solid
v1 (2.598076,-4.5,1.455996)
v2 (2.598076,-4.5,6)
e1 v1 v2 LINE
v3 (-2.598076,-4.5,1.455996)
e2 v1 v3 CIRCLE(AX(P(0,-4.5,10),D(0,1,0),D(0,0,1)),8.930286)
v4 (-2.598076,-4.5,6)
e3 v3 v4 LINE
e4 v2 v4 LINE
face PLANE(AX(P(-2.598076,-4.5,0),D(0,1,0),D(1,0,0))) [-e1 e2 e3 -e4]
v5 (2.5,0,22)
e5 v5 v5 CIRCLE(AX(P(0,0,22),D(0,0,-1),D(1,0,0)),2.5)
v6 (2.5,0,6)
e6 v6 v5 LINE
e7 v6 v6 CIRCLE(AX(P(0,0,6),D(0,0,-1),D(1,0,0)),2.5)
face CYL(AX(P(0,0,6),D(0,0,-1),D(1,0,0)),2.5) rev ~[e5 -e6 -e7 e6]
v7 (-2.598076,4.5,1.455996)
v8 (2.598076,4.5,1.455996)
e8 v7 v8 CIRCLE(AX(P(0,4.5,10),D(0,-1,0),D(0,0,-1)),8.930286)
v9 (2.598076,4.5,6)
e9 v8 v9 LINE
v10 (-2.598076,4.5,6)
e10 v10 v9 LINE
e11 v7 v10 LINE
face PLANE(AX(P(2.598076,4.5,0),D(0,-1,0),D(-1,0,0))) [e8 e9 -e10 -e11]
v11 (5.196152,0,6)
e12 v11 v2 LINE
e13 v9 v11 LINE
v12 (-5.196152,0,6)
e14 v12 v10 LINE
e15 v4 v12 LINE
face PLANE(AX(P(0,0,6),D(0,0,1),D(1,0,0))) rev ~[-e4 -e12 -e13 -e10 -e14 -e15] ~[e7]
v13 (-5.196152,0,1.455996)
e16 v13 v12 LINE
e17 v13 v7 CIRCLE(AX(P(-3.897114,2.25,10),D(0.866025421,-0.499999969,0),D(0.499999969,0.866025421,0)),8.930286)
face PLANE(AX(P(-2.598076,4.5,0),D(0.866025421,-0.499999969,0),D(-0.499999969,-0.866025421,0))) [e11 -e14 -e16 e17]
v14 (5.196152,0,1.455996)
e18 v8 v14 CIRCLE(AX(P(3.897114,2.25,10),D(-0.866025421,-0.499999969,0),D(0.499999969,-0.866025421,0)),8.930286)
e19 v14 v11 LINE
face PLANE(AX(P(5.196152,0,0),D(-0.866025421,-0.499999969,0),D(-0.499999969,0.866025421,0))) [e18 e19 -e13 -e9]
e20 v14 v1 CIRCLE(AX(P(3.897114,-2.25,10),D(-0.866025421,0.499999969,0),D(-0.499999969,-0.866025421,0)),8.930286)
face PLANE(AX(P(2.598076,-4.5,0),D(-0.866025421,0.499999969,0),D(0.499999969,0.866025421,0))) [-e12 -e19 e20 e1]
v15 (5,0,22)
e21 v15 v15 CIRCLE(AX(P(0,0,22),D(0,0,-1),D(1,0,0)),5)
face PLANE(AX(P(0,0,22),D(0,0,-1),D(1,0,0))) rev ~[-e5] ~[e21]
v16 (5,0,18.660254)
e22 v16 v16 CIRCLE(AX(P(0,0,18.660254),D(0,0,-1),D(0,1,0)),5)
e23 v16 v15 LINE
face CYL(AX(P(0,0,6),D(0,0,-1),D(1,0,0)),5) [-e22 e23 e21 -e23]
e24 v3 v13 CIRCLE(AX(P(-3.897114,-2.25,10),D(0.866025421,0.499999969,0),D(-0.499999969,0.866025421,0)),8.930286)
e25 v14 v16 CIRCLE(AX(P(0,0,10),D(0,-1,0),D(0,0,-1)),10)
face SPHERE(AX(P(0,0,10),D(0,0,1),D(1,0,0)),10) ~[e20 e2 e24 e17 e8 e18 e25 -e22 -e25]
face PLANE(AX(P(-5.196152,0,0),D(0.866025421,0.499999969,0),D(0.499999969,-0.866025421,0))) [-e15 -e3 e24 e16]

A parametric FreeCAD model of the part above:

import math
import FreeCAD as App
import Part
import Sketcher
from FreeCAD import Vector
Q = App.Units.Quantity

doc = App.newDocument("Part")
body = doc.addObject("PartDesign::Body", "Body")

sketch1 = body.newObject("Sketcher::SketchObject", "Sketch")
sketch1.AttachmentSupport = (doc.getObject("XZ_Plane"), [""])
sketch1.MapMode = "FlatFace"
sketch1.addGeometry(Part.ArcOfCircle(Part.Circle(Vector(0, 10, 0), Vector(0, 0, 1), 10), math.radians(-90), math.radians(90)), False)
sketch1.addGeometry(Part.LineSegment(Vector(0, 20, 0), Vector(0, 0, 0)), False)
sketch1.addConstraint(Sketcher.Constraint("Coincident", 0, 1, 1, 2))
sketch1.addConstraint(Sketcher.Constraint("Coincident", 1, 1, 0, 2))
sketch1.addConstraint(Sketcher.Constraint("Vertical", 1))
sketch1.addConstraint(Sketcher.Constraint("Coincident", 0, 1, -1, 1))
sketch1.addConstraint(Sketcher.Constraint("PointOnObject", 0, 3, -2))
sketch1.addConstraint(Sketcher.Constraint("Radius", 0, Q("10 mm")))
revolution = body.newObject("PartDesign::Revolution", "Revolution")
revolution.Profile = sketch1
revolution.ReferenceAxis = (sketch1, ["V_Axis"])
revolution.Angle = 360

sketch2 = body.newObject("Sketcher::SketchObject", "Sketch001")
sketch2.AttachmentSupport = (doc.getObject("XY_Plane"), [""])
sketch2.MapMode = "FlatFace"
sketch2.addGeometry(Part.LineSegment(Vector(-3, -4, 0), Vector(3, -4, 0)), False)
sketch2.addGeometry(Part.LineSegment(Vector(3, -4, 0), Vector(5, 0, 0)), False)
sketch2.addGeometry(Part.LineSegment(Vector(5, 0, 0), Vector(3, 4, 0)), False)
sketch2.addGeometry(Part.LineSegment(Vector(3, 4, 0), Vector(-3, 4, 0)), False)
sketch2.addGeometry(Part.LineSegment(Vector(-3, 4, 0), Vector(-5, 0, 0)), False)
sketch2.addGeometry(Part.LineSegment(Vector(-5, 0, 0), Vector(-3, -4, 0)), False)
sketch2.addConstraint(Sketcher.Constraint("Coincident", 0, 2, 1, 1))
sketch2.addConstraint(Sketcher.Constraint("Coincident", 1, 2, 2, 1))
sketch2.addConstraint(Sketcher.Constraint("Coincident", 2, 2, 3, 1))
sketch2.addConstraint(Sketcher.Constraint("Coincident", 3, 2, 4, 1))
sketch2.addConstraint(Sketcher.Constraint("Coincident", 4, 2, 5, 1))
sketch2.addConstraint(Sketcher.Constraint("Coincident", 5, 2, 0, 1))
sketch2.addConstraint(Sketcher.Constraint("Horizontal", 0))
sketch2.addConstraint(Sketcher.Constraint("Horizontal", 3))
sketch2.addConstraint(Sketcher.Constraint("Symmetric", 0, 2, 3, 2, -1, 1))
sketch2.addConstraint(Sketcher.Constraint("Symmetric", 1, 2, 4, 2, -1, 1))
sketch2.addConstraint(Sketcher.Constraint("PointOnObject", 1, 2, -1))
sketch2.addConstraint(Sketcher.Constraint("Parallel", 2, 5))
sketch2.addConstraint(Sketcher.Constraint("Vertical", 0, 2, 2, 2))
sketch2.addConstraint(Sketcher.Constraint("Angle", 1, Q("60.000002 deg")))
sketch2.addConstraint(Sketcher.Constraint("DistanceY", 0, 2, 2, 2, Q("9 mm")))
sketch2.addConstraint(Sketcher.Constraint("DistanceX", 0, 1, 0, 2, Q("5.196152 mm")))
pocket1 = body.newObject("PartDesign::Pocket", "Pocket")
pocket1.Profile = sketch2
pocket1.Length = 6
pocket1.Reversed = True

sketch3 = body.newObject("Sketcher::SketchObject", "Sketch002")
sketch3.AttachmentSupport = (doc.getObject("XY_Plane"), [""])
sketch3.MapMode = "FlatFace"
sketch3.AttachmentOffset = App.Placement(Vector(0, 0, 6), App.Rotation())
sketch3.addGeometry(Part.Circle(Vector(0, 0, 0), Vector(0, 0, 1), 5), False)
sketch3.addConstraint(Sketcher.Constraint("Coincident", 0, 3, -1, 1))
sketch3.addConstraint(Sketcher.Constraint("Diameter", 0, Q("10 mm")))
pad1 = body.newObject("PartDesign::Pad", "Pad")
pad1.Profile = sketch3
pad1.Length = 16

sketch4 = body.newObject("Sketcher::SketchObject", "Sketch003")
sketch4.AttachmentSupport = (doc.getObject("XY_Plane"), [""])
sketch4.MapMode = "FlatFace"
sketch4.AttachmentOffset = App.Placement(Vector(0, 0, 6), App.Rotation())
sketch4.addGeometry(Part.Circle(Vector(0, 0, 0), Vector(0, 0, 1), 2.5), False)
sketch4.addConstraint(Sketcher.Constraint("Coincident", 0, 3, -1, 1))
sketch4.addConstraint(Sketcher.Constraint("Diameter", 0, Q("5 mm")))
pocket2 = body.newObject("PartDesign::Pocket", "Pocket001")
pocket2.Profile = sketch4
pocket2.Length = 25
pocket2.Reversed = True

doc.recompute()
